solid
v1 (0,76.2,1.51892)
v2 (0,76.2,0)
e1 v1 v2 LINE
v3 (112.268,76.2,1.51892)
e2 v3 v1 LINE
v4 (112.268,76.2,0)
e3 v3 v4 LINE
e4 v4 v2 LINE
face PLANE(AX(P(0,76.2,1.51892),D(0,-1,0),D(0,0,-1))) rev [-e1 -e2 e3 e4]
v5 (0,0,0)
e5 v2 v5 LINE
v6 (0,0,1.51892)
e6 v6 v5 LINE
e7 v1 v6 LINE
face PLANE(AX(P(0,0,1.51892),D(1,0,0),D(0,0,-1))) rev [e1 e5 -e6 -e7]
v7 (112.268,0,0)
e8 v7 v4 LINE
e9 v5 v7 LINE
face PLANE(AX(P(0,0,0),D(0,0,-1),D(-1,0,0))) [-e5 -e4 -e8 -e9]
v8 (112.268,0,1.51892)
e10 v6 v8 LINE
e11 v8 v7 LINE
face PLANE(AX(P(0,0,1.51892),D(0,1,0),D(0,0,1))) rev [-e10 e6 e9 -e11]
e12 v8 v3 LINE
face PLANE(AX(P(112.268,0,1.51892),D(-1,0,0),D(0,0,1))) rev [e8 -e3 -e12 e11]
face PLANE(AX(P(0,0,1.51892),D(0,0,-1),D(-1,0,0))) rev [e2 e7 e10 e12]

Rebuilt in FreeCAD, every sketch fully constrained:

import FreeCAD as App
import Part
import Sketcher
Q = App.Units.Quantity

doc = App.newDocument("Part")
body = doc.addObject("PartDesign::Body", "Body")

# Sketch on XY plane
sketch1 = body.newObject("Sketcher::SketchObject", "Sketch")
sketch1.AttachmentSupport = (doc.getObject("XY_Plane"), [""])
sketch1.MapMode = "FlatFace"
sketch1.addGeometry([
    Part.LineSegment(App.Vector(0, 76, 0), App.Vector(0, 0, 0)),
    Part.LineSegment(App.Vector(0, 0, 0), App.Vector(112, 0, 0)),
    Part.LineSegment(App.Vector(112, 0, 0), App.Vector(112, 76, 0)),
    Part.LineSegment(App.Vector(112, 76, 0), App.Vector(0, 76, 0)),
], False)
sketch1.addConstraint([
    Sketcher.Constraint("Coincident", 0, 2, 1, 1),
    Sketcher.Constraint("Coincident", 1, 2, 2, 1),
    Sketcher.Constraint("Coincident", 2, 2, 3, 1),
    Sketcher.Constraint("Coincident", 3, 2, 0, 1),
    Sketcher.Constraint("Vertical", 0),
    Sketcher.Constraint("Horizontal", 1),
    Sketcher.Constraint("Vertical", 2),
    Sketcher.Constraint("Horizontal", 3),
    Sketcher.Constraint("Coincident", 0, 2, -1, 1),
    Sketcher.Constraint("DistanceY", 0, 2, 0, 1, Q("3 in")),
    Sketcher.Constraint("DistanceX", 1, 1, 1, 2, Q("4.42 in")),
])
pad1 = body.newObject("PartDesign::Pad", "Pad")
pad1.Profile = sketch1
pad1.Length = Q("0.0598 in")

doc.recompute()
